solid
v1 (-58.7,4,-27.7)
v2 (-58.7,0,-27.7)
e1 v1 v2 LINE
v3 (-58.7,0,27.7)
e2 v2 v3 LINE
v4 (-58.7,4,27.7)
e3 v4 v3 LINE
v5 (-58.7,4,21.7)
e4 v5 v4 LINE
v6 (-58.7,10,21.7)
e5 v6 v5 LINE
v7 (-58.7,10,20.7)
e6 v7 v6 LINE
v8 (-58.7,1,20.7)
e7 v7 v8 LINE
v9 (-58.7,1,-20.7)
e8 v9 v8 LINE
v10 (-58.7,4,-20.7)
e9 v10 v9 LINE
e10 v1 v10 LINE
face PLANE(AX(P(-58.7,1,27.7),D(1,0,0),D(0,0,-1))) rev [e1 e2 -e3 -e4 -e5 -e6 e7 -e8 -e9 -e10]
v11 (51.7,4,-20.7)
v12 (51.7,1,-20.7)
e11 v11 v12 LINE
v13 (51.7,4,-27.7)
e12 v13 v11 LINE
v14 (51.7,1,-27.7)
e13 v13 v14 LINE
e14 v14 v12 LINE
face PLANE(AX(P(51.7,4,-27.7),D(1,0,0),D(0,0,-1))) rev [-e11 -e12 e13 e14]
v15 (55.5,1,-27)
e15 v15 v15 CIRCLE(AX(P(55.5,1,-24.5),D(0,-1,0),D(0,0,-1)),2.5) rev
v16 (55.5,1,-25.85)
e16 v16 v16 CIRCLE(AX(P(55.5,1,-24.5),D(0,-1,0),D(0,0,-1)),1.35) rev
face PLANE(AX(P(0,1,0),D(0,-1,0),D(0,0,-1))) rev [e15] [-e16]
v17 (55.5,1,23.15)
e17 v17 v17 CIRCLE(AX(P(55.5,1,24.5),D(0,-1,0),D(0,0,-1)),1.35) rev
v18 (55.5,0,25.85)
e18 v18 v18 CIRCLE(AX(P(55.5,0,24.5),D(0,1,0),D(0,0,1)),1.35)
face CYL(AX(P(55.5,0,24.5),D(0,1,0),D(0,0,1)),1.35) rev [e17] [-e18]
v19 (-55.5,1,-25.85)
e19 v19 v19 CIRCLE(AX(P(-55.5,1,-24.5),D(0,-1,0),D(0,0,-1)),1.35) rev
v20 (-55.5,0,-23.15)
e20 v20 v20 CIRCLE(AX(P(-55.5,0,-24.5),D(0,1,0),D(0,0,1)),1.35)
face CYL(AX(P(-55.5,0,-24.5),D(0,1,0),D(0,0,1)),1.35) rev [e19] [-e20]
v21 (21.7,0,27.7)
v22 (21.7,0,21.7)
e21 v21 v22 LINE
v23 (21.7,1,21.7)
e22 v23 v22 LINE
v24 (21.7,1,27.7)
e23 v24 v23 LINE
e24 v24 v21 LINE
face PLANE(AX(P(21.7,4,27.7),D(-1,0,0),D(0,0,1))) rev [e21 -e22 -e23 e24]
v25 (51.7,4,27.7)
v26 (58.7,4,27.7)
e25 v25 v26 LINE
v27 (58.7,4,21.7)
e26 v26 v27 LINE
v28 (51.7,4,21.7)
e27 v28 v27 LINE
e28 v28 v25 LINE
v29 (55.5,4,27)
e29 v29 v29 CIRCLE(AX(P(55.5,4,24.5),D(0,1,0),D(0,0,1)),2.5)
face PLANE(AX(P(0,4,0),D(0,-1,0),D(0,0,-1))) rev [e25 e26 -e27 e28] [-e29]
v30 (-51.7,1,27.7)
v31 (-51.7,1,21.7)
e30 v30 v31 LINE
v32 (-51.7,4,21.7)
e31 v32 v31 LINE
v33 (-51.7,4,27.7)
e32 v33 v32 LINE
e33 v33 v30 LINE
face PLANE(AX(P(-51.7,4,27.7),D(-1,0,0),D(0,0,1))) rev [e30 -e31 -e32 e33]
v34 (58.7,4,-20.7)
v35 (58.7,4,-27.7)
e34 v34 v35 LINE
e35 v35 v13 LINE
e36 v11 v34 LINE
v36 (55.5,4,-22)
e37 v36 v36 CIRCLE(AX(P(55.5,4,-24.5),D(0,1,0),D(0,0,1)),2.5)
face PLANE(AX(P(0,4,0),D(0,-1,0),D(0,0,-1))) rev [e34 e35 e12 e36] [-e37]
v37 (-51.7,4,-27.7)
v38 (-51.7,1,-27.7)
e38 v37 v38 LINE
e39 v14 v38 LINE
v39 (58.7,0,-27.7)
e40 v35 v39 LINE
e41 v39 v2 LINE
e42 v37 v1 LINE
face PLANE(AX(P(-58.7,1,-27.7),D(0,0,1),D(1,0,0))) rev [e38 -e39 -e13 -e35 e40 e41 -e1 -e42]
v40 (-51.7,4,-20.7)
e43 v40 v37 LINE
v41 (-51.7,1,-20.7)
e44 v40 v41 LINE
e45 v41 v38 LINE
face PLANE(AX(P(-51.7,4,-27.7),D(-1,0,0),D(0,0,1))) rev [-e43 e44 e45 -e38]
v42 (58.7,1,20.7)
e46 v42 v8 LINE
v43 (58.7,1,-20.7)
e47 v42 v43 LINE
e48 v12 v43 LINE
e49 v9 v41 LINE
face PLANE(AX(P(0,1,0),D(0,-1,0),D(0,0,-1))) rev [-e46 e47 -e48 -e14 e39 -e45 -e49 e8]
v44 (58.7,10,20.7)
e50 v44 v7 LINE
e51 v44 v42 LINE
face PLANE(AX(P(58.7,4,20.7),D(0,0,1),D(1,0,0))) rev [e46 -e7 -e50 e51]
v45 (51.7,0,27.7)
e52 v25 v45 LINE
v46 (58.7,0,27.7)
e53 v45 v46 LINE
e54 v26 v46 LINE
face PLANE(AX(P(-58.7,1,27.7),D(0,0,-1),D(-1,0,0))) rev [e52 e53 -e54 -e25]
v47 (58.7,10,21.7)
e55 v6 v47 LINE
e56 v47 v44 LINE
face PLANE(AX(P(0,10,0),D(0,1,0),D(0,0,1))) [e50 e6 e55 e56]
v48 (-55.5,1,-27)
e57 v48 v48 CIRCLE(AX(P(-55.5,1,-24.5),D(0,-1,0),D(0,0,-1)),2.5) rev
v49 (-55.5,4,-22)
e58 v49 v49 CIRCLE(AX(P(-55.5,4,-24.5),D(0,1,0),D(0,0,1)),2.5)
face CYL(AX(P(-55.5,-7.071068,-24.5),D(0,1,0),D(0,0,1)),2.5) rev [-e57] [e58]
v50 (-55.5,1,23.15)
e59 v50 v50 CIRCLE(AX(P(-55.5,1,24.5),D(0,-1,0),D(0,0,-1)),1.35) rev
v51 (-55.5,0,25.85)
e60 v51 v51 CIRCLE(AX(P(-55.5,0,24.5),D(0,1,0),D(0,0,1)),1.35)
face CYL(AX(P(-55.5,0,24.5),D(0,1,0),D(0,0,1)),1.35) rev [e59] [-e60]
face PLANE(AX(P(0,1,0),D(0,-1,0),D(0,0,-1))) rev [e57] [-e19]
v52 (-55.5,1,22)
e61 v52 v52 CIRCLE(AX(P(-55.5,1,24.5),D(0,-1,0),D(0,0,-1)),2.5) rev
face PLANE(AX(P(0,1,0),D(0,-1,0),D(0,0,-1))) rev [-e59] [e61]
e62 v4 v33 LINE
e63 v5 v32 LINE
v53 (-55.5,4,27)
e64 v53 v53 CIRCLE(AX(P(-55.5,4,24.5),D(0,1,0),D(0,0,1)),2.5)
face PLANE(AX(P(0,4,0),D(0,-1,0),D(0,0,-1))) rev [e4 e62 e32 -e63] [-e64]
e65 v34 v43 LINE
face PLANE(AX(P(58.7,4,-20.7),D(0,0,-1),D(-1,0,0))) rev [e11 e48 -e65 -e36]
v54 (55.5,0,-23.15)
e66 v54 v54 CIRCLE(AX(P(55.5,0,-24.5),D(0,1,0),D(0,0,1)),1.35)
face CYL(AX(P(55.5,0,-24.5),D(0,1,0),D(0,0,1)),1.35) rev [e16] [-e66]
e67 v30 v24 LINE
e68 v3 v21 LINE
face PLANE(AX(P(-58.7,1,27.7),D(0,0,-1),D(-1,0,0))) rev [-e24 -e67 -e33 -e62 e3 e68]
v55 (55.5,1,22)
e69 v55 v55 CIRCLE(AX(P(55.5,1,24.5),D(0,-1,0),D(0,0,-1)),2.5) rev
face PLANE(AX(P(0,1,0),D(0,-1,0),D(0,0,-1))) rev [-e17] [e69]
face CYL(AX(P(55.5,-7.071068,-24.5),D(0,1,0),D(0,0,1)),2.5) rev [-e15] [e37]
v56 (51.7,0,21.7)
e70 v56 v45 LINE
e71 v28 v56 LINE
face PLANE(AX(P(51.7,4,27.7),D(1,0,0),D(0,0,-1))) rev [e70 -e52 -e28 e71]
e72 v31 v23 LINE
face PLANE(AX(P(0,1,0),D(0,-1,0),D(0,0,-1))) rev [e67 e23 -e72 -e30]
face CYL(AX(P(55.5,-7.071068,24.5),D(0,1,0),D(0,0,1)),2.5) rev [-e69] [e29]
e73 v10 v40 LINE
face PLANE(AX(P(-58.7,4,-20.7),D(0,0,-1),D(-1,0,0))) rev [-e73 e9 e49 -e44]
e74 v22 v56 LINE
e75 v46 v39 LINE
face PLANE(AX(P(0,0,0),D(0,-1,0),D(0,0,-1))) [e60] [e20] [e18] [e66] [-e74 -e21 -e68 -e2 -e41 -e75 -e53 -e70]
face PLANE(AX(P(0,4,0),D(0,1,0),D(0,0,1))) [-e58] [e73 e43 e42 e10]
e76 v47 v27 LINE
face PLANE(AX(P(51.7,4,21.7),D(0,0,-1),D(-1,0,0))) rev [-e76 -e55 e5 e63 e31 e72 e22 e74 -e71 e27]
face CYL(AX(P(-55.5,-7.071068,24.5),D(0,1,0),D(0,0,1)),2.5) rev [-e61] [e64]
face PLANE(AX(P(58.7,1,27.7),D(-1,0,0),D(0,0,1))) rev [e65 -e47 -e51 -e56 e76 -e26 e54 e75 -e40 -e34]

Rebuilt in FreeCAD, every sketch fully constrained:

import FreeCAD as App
import Part
import Sketcher

V = App.Vector

doc = App.newDocument("Part")
params = doc.addObject("Spreadsheet::Sheet", "Params")
for row, (alias, value) in enumerate([
    ("sketch1_width", "117.4 mm"),
    ("sketch1_height", "55.4 mm"),
    ("pad1_length", "1 mm"),
    ("sketch2_width", "7 mm"),
    ("pad2_length", "3 mm"),
    ("sketch3_diameter", "2.7 mm"),
    ("sketch4_width", "30 mm"),
    ("sketch4_height", "6 mm"),
    ("sketch5_diameter", "5 mm"),
    ("pocket3_length", "3 mm"),
    ("sketch6_height", "1 mm"),
    ("sketch6_width", "117.4 mm"),
    ("pad3_length", "9 mm"),
], start=1):
    params.set(f"A{row}", alias)
    params.set(f"B{row}", "=" + value)
    params.setAlias(f"B{row}", alias)

body = doc.addObject("PartDesign::Body", "Body")

sketch1 = doc.addObject("Sketcher::SketchObject", "Sketch")
body.addObject(sketch1)
sketch1.AttachmentSupport = (doc.XZ_Plane, [""])
sketch1.MapMode = "FlatFace"
sketch1.addGeometry([
    Part.LineSegment(V(-59, -28, 0), V(-59, 28, 0)),
    Part.LineSegment(V(-59, 28, 0), V(59, 28, 0)),
    Part.LineSegment(V(59, 28, 0), V(59, -28, 0)),
    Part.LineSegment(V(59, -28, 0), V(-59, -28, 0)),
], False)
sketch1.addConstraint([
    Sketcher.Constraint("Coincident", 0, 2, 1, 1),
    Sketcher.Constraint("Coincident", 1, 2, 2, 1),
    Sketcher.Constraint("Coincident", 2, 2, 3, 1),
    Sketcher.Constraint("Coincident", 3, 2, 0, 1),
    Sketcher.Constraint("Vertical", 0),
    Sketcher.Constraint("Horizontal", 1),
    Sketcher.Constraint("Vertical", 2),
    Sketcher.Constraint("Horizontal", 3),
    Sketcher.Constraint("Symmetric", 0, 2, 2, 2, -1, 1),
    Sketcher.Constraint("DistanceX", 1, 1, 1, 2, 117.4),
    Sketcher.Constraint("DistanceY", 0, 1, 0, 2, 55.4),
])
sketch1.setExpression("Constraints[9]", "Params.sketch1_width")
sketch1.setExpression("Constraints[10]", "Params.sketch1_height")
pad1 = doc.addObject("PartDesign::Pad", "Pad")
body.addObject(pad1)
pad1.Profile = sketch1
pad1.setExpression("Length", "Params.pad1_length")
pad1.Reversed = True

sketch2 = doc.addObject("Sketcher::SketchObject", "Sketch001")
body.addObject(sketch2)
sketch2.AttachmentSupport = (doc.XZ_Plane, [""])
sketch2.MapMode = "FlatFace"
sketch2.AttachmentOffset = App.Placement(V(0, 0, -1), App.Rotation())
sketch2.addGeometry([
    Part.LineSegment(V(52, -28, 0), V(52, -21, 0)),
    Part.LineSegment(V(52, -21, 0), V(59, -21, 0)),
    Part.LineSegment(V(59, -21, 0), V(59, -28, 0)),
    Part.LineSegment(V(59, -28, 0), V(52, -28, 0)),
    Part.LineSegment(V(-59, -28, 0), V(-59, -21, 0)),
    Part.LineSegment(V(-59, -21, 0), V(-52, -21, 0)),
    Part.LineSegment(V(-52, -21, 0), V(-52, -28, 0)),
    Part.LineSegment(V(-52, -28, 0), V(-59, -28, 0)),
    Part.LineSegment(V(52, 21, 0), V(52, 28, 0)),
    Part.LineSegment(V(52, 28, 0), V(59, 28, 0)),
    Part.LineSegment(V(59, 28, 0), V(59, 21, 0)),
    Part.LineSegment(V(59, 21, 0), V(52, 21, 0)),
    Part.LineSegment(V(-59, 21, 0), V(-59, 28, 0)),
    Part.LineSegment(V(-59, 28, 0), V(-52, 28, 0)),
    Part.LineSegment(V(-52, 28, 0), V(-52, 21, 0)),
    Part.LineSegment(V(-52, 21, 0), V(-59, 21, 0)),
], False)
sketch2.addConstraint([
    Sketcher.Constraint("Coincident", 0, 2, 1, 1),
    Sketcher.Constraint("Coincident", 1, 2, 2, 1),
    Sketcher.Constraint("Coincident", 2, 2, 3, 1),
    Sketcher.Constraint("Coincident", 3, 2, 0, 1),
    Sketcher.Constraint("Coincident", 4, 2, 5, 1),
    Sketcher.Constraint("Coincident", 5, 2, 6, 1),
    Sketcher.Constraint("Coincident", 6, 2, 7, 1),
    Sketcher.Constraint("Coincident", 7, 2, 4, 1),
    Sketcher.Constraint("Coincident", 8, 2, 9, 1),
    Sketcher.Constraint("Coincident", 9, 2, 10, 1),
    Sketcher.Constraint("Coincident", 10, 2, 11, 1),
    Sketcher.Constraint("Coincident", 11, 2, 8, 1),
    Sketcher.Constraint("Coincident", 12, 2, 13, 1),
    Sketcher.Constraint("Coincident", 13, 2, 14, 1),
    Sketcher.Constraint("Coincident", 14, 2, 15, 1),
    Sketcher.Constraint("Coincident", 15, 2, 12, 1),
    Sketcher.Constraint("Vertical", 0),
    Sketcher.Constraint("Horizontal", 1),
    Sketcher.Constraint("Vertical", 2),
    Sketcher.Constraint("Horizontal", 3),
    Sketcher.Constraint("Vertical", 4),
    Sketcher.Constraint("Horizontal", 5),
    Sketcher.Constraint("Vertical", 6),
    Sketcher.Constraint("Horizontal", 7),
    Sketcher.Constraint("Vertical", 8),
    Sketcher.Constraint("Horizontal", 9),
    Sketcher.Constraint("Vertical", 10),
    Sketcher.Constraint("Horizontal", 11),
    Sketcher.Constraint("Vertical", 12),
    Sketcher.Constraint("Horizontal", 13),
    Sketcher.Constraint("Vertical", 14),
    Sketcher.Constraint("Horizontal", 15),
    Sketcher.Constraint("Symmetric", 6, 2, 8, 2, -1, 1),
    Sketcher.Constraint("Symmetric", 4, 2, 10, 2, -1, 1),
    Sketcher.Constraint("Symmetric", 2, 2, 12, 2, -1, 1),
    Sketcher.Constraint("Symmetric", 0, 2, 14, 2, -1, 1),
    Sketcher.Constraint("Symmetric", 1, 2, 4, 2, -2),
    Sketcher.Constraint("Symmetric", 3, 2, 6, 2, -2),
    Sketcher.Constraint("Equal", 15, 0),
    Sketcher.Constraint("DistanceX", 1, 1, 1, 2, 7.0),
    Sketcher.Constraint("DistanceX", -1, 1, 0, 2, 51.7),
    Sketcher.Constraint("DistanceY", 0, 2, -1, 1, 20.7),
])
sketch2.setExpression("Constraints[39]", "Params.sketch2_width")
pad2 = doc.addObject("PartDesign::Pad", "Pad001")
body.addObject(pad2)
pad2.Profile = sketch2
pad2.setExpression("Length", "Params.pad2_length")
pad2.Reversed = True

sketch3 = doc.addObject("Sketcher::SketchObject", "Sketch002")
body.addObject(sketch3)
sketch3.AttachmentSupport = (doc.XZ_Plane, [""])
sketch3.MapMode = "FlatFace"
sketch3.AttachmentOffset = App.Placement(V(0, 0, -4), App.Rotation())
sketch3.addGeometry([
    Part.Circle(V(-55.5, -24.5, 0), V(0, 0, 1), 1.4),
    Part.Circle(V(55.5, -24.5, 0), V(0, 0, 1), 1.4),
    Part.Circle(V(55.5, 24.5, 0), V(0, 0, 1), 1.4),
    Part.Circle(V(-55.5, 24.5, 0), V(0, 0, 1), 1.4),
], False)
sketch3.addConstraint([
    Sketcher.Constraint("Equal", 0, 1),
    Sketcher.Constraint("Equal", 1, 2),
    Sketcher.Constraint("Equal", 2, 3),
    Sketcher.Constraint("Symmetric", 0, 3, 2, 3, -1, 1),
    Sketcher.Constraint("Symmetric", 1, 3, 3, 3, -1, 1),
    Sketcher.Constraint("Symmetric", 0, 3, 1, 3, -2),
    Sketcher.Constraint("Diameter", 0, 2.7),
    Sketcher.Constraint("DistanceX", 0, 3, 1, 3, 111.0),
    Sketcher.Constraint("DistanceY", 1, 3, 2, 3, 49.0),
])
sketch3.setExpression("Constraints[6]", "Params.sketch3_diameter")
pocket1 = doc.addObject("PartDesign::Pocket", "Pocket")
body.addObject(pocket1)
pocket1.Profile = sketch3
pocket1.Type = "ThroughAll"
pocket1.Reversed = True

sketch4 = doc.addObject("Sketcher::SketchObject", "Sketch003")
body.addObject(sketch4)
sketch4.AttachmentSupport = (doc.XZ_Plane, [""])
sketch4.MapMode = "FlatFace"
sketch4.addGeometry([
    Part.LineSegment(V(22, 28, 0), V(22, 22, 0)),
    Part.LineSegment(V(22, 22, 0), V(52, 22, 0)),
    Part.LineSegment(V(52, 22, 0), V(52, 28, 0)),
    Part.LineSegment(V(52, 28, 0), V(22, 28, 0)),
], False)
sketch4.addConstraint([
    Sketcher.Constraint("Coincident", 0, 2, 1, 1),
    Sketcher.Constraint("Coincident", 1, 2, 2, 1),
    Sketcher.Constraint("Coincident", 2, 2, 3, 1),
    Sketcher.Constraint("Coincident", 3, 2, 0, 1),
    Sketcher.Constraint("Vertical", 0),
    Sketcher.Constraint("Horizontal", 1),
    Sketcher.Constraint("Vertical", 2),
    Sketcher.Constraint("Horizontal", 3),
    Sketcher.Constraint("DistanceX", 1, 1, 1, 2, 30.0),
    Sketcher.Constraint("DistanceY", 0, 2, 0, 1, 6.0),
    Sketcher.Constraint("DistanceX", -1, 1, 0, 2, 21.7),
    Sketcher.Constraint("DistanceY", -1, 1, 0, 2, 21.7),
])
sketch4.setExpression("Constraints[8]", "Params.sketch4_width")
sketch4.setExpression("Constraints[9]", "Params.sketch4_height")
pocket2 = doc.addObject("PartDesign::Pocket", "Pocket001")
body.addObject(pocket2)
pocket2.Profile = sketch4
pocket2.Type = "ThroughAll"

sketch5 = doc.addObject("Sketcher::SketchObject", "Sketch004")
body.addObject(sketch5)
sketch5.AttachmentSupport = (doc.XZ_Plane, [""])
sketch5.MapMode = "FlatFace"
sketch5.AttachmentOffset = App.Placement(V(0, 0, -4), App.Rotation())
sketch5.addGeometry([
    Part.Circle(V(-55.5, -24.5, 0), V(0, 0, 1), 2.5),
    Part.Circle(V(55.5, -24.5, 0), V(0, 0, 1), 2.5),
    Part.Circle(V(55.5, 24.5, 0), V(0, 0, 1), 2.5),
    Part.Circle(V(-55.5, 24.5, 0), V(0, 0, 1), 2.5),
], False)
sketch5.addConstraint([
    Sketcher.Constraint("Equal", 0, 1),
    Sketcher.Constraint("Equal", 1, 2),
    Sketcher.Constraint("Equal", 2, 3),
    Sketcher.Constraint("Symmetric", 0, 3, 2, 3, -1, 1),
    Sketcher.Constraint("Symmetric", 1, 3, 3, 3, -1, 1),
    Sketcher.Constraint("Symmetric", 0, 3, 1, 3, -2),
    Sketcher.Constraint("Diameter", 0, 5.0),
    Sketcher.Constraint("DistanceX", 0, 3, 1, 3, 111.0),
    Sketcher.Constraint("DistanceY", 1, 3, 2, 3, 49.0),
])
sketch5.setExpression("Constraints[6]", "Params.sketch5_diameter")
pocket3 = doc.addObject("PartDesign::Pocket", "Pocket002")
body.addObject(pocket3)
pocket3.Profile = sketch5
pocket3.setExpression("Length", "Params.pocket3_length")
pocket3.Reversed = True

sketch6 = doc.addObject("Sketcher::SketchObject", "Sketch005")
body.addObject(sketch6)
sketch6.AttachmentSupport = (doc.XZ_Plane, [""])
sketch6.MapMode = "FlatFace"
sketch6.AttachmentOffset = App.Placement(V(0, 0, -1), App.Rotation())
sketch6.addGeometry([
    Part.LineSegment(V(-58.7, 20.7, 0), V(-58.7, 21.7, 0)),
    Part.LineSegment(V(-58.7, 21.7, 0), V(58.7, 21.7, 0)),
    Part.LineSegment(V(58.7, 21.7, 0), V(58.7, 20.7, 0)),
    Part.LineSegment(V(58.7, 20.7, 0), V(-58.7, 20.7, 0)),
], False)
sketch6.addConstraint([
    Sketcher.Constraint("Coincident", 0, 2, 1, 1),
    Sketcher.Constraint("Coincident", 1, 2, 2, 1),
    Sketcher.Constraint("Coincident", 2, 2, 3, 1),
    Sketcher.Constraint("Coincident", 3, 2, 0, 1),
    Sketcher.Constraint("Vertical", 0),
    Sketcher.Constraint("Horizontal", 1),
    Sketcher.Constraint("Vertical", 2),
    Sketcher.Constraint("Horizontal", 3),
    Sketcher.Constraint("DistanceY", 0, 1, 0, 2, 1.0),
    Sketcher.Constraint("DistanceX", 1, 1, 1, 2, 117.4),
    Sketcher.Constraint("DistanceX", 0, 2, -1, 1, 58.7),
    Sketcher.Constraint("DistanceY", -1, 1, 0, 2, 21.7),
])
sketch6.setExpression("Constraints[8]", "Params.sketch6_height")
sketch6.setExpression("Constraints[9]", "Params.sketch6_width")
pad3 = doc.addObject("PartDesign::Pad", "Pad002")
body.addObject(pad3)
pad3.Profile = sketch6
pad3.setExpression("Length", "Params.pad3_length")
pad3.Reversed = True

doc.recompute()
